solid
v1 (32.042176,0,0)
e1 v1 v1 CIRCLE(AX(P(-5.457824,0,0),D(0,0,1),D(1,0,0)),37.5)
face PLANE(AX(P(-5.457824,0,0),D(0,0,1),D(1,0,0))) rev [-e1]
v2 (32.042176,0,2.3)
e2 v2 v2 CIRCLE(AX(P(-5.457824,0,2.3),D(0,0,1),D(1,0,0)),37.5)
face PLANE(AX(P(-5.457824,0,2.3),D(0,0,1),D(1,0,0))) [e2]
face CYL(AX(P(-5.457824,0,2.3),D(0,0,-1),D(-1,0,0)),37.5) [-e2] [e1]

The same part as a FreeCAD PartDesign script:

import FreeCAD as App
import Part
import Sketcher
Q = App.Units.Quantity

doc = App.newDocument("Part")
body = doc.addObject("PartDesign::Body", "Body")

# Sketch on XY plane
sketch1 = doc.addObject("Sketcher::SketchObject", "Sketch")
body.addObject(sketch1)
sketch1.AttachmentSupport = (doc.XY_Plane, [""])
sketch1.MapMode = "FlatFace"
sketch1.addGeometry(Part.Circle(App.Vector(-5.457824, 0, 0), App.Vector(0, 0, 1), 37.5), False)
sketch1.addConstraint(Sketcher.Constraint("PointOnObject", 0, 3, -1))
sketch1.addConstraint(Sketcher.Constraint("Diameter", 0, Q("75 mm")))
sketch1.addConstraint(Sketcher.Constraint("DistanceX", 0, 3, -1, 1, Q("5.457824 mm")))
pad1 = doc.addObject("PartDesign::Pad", "Pad")
body.addObject(pad1)
pad1.Profile = sketch1
pad1.Length = 2.3

doc.recompute()
